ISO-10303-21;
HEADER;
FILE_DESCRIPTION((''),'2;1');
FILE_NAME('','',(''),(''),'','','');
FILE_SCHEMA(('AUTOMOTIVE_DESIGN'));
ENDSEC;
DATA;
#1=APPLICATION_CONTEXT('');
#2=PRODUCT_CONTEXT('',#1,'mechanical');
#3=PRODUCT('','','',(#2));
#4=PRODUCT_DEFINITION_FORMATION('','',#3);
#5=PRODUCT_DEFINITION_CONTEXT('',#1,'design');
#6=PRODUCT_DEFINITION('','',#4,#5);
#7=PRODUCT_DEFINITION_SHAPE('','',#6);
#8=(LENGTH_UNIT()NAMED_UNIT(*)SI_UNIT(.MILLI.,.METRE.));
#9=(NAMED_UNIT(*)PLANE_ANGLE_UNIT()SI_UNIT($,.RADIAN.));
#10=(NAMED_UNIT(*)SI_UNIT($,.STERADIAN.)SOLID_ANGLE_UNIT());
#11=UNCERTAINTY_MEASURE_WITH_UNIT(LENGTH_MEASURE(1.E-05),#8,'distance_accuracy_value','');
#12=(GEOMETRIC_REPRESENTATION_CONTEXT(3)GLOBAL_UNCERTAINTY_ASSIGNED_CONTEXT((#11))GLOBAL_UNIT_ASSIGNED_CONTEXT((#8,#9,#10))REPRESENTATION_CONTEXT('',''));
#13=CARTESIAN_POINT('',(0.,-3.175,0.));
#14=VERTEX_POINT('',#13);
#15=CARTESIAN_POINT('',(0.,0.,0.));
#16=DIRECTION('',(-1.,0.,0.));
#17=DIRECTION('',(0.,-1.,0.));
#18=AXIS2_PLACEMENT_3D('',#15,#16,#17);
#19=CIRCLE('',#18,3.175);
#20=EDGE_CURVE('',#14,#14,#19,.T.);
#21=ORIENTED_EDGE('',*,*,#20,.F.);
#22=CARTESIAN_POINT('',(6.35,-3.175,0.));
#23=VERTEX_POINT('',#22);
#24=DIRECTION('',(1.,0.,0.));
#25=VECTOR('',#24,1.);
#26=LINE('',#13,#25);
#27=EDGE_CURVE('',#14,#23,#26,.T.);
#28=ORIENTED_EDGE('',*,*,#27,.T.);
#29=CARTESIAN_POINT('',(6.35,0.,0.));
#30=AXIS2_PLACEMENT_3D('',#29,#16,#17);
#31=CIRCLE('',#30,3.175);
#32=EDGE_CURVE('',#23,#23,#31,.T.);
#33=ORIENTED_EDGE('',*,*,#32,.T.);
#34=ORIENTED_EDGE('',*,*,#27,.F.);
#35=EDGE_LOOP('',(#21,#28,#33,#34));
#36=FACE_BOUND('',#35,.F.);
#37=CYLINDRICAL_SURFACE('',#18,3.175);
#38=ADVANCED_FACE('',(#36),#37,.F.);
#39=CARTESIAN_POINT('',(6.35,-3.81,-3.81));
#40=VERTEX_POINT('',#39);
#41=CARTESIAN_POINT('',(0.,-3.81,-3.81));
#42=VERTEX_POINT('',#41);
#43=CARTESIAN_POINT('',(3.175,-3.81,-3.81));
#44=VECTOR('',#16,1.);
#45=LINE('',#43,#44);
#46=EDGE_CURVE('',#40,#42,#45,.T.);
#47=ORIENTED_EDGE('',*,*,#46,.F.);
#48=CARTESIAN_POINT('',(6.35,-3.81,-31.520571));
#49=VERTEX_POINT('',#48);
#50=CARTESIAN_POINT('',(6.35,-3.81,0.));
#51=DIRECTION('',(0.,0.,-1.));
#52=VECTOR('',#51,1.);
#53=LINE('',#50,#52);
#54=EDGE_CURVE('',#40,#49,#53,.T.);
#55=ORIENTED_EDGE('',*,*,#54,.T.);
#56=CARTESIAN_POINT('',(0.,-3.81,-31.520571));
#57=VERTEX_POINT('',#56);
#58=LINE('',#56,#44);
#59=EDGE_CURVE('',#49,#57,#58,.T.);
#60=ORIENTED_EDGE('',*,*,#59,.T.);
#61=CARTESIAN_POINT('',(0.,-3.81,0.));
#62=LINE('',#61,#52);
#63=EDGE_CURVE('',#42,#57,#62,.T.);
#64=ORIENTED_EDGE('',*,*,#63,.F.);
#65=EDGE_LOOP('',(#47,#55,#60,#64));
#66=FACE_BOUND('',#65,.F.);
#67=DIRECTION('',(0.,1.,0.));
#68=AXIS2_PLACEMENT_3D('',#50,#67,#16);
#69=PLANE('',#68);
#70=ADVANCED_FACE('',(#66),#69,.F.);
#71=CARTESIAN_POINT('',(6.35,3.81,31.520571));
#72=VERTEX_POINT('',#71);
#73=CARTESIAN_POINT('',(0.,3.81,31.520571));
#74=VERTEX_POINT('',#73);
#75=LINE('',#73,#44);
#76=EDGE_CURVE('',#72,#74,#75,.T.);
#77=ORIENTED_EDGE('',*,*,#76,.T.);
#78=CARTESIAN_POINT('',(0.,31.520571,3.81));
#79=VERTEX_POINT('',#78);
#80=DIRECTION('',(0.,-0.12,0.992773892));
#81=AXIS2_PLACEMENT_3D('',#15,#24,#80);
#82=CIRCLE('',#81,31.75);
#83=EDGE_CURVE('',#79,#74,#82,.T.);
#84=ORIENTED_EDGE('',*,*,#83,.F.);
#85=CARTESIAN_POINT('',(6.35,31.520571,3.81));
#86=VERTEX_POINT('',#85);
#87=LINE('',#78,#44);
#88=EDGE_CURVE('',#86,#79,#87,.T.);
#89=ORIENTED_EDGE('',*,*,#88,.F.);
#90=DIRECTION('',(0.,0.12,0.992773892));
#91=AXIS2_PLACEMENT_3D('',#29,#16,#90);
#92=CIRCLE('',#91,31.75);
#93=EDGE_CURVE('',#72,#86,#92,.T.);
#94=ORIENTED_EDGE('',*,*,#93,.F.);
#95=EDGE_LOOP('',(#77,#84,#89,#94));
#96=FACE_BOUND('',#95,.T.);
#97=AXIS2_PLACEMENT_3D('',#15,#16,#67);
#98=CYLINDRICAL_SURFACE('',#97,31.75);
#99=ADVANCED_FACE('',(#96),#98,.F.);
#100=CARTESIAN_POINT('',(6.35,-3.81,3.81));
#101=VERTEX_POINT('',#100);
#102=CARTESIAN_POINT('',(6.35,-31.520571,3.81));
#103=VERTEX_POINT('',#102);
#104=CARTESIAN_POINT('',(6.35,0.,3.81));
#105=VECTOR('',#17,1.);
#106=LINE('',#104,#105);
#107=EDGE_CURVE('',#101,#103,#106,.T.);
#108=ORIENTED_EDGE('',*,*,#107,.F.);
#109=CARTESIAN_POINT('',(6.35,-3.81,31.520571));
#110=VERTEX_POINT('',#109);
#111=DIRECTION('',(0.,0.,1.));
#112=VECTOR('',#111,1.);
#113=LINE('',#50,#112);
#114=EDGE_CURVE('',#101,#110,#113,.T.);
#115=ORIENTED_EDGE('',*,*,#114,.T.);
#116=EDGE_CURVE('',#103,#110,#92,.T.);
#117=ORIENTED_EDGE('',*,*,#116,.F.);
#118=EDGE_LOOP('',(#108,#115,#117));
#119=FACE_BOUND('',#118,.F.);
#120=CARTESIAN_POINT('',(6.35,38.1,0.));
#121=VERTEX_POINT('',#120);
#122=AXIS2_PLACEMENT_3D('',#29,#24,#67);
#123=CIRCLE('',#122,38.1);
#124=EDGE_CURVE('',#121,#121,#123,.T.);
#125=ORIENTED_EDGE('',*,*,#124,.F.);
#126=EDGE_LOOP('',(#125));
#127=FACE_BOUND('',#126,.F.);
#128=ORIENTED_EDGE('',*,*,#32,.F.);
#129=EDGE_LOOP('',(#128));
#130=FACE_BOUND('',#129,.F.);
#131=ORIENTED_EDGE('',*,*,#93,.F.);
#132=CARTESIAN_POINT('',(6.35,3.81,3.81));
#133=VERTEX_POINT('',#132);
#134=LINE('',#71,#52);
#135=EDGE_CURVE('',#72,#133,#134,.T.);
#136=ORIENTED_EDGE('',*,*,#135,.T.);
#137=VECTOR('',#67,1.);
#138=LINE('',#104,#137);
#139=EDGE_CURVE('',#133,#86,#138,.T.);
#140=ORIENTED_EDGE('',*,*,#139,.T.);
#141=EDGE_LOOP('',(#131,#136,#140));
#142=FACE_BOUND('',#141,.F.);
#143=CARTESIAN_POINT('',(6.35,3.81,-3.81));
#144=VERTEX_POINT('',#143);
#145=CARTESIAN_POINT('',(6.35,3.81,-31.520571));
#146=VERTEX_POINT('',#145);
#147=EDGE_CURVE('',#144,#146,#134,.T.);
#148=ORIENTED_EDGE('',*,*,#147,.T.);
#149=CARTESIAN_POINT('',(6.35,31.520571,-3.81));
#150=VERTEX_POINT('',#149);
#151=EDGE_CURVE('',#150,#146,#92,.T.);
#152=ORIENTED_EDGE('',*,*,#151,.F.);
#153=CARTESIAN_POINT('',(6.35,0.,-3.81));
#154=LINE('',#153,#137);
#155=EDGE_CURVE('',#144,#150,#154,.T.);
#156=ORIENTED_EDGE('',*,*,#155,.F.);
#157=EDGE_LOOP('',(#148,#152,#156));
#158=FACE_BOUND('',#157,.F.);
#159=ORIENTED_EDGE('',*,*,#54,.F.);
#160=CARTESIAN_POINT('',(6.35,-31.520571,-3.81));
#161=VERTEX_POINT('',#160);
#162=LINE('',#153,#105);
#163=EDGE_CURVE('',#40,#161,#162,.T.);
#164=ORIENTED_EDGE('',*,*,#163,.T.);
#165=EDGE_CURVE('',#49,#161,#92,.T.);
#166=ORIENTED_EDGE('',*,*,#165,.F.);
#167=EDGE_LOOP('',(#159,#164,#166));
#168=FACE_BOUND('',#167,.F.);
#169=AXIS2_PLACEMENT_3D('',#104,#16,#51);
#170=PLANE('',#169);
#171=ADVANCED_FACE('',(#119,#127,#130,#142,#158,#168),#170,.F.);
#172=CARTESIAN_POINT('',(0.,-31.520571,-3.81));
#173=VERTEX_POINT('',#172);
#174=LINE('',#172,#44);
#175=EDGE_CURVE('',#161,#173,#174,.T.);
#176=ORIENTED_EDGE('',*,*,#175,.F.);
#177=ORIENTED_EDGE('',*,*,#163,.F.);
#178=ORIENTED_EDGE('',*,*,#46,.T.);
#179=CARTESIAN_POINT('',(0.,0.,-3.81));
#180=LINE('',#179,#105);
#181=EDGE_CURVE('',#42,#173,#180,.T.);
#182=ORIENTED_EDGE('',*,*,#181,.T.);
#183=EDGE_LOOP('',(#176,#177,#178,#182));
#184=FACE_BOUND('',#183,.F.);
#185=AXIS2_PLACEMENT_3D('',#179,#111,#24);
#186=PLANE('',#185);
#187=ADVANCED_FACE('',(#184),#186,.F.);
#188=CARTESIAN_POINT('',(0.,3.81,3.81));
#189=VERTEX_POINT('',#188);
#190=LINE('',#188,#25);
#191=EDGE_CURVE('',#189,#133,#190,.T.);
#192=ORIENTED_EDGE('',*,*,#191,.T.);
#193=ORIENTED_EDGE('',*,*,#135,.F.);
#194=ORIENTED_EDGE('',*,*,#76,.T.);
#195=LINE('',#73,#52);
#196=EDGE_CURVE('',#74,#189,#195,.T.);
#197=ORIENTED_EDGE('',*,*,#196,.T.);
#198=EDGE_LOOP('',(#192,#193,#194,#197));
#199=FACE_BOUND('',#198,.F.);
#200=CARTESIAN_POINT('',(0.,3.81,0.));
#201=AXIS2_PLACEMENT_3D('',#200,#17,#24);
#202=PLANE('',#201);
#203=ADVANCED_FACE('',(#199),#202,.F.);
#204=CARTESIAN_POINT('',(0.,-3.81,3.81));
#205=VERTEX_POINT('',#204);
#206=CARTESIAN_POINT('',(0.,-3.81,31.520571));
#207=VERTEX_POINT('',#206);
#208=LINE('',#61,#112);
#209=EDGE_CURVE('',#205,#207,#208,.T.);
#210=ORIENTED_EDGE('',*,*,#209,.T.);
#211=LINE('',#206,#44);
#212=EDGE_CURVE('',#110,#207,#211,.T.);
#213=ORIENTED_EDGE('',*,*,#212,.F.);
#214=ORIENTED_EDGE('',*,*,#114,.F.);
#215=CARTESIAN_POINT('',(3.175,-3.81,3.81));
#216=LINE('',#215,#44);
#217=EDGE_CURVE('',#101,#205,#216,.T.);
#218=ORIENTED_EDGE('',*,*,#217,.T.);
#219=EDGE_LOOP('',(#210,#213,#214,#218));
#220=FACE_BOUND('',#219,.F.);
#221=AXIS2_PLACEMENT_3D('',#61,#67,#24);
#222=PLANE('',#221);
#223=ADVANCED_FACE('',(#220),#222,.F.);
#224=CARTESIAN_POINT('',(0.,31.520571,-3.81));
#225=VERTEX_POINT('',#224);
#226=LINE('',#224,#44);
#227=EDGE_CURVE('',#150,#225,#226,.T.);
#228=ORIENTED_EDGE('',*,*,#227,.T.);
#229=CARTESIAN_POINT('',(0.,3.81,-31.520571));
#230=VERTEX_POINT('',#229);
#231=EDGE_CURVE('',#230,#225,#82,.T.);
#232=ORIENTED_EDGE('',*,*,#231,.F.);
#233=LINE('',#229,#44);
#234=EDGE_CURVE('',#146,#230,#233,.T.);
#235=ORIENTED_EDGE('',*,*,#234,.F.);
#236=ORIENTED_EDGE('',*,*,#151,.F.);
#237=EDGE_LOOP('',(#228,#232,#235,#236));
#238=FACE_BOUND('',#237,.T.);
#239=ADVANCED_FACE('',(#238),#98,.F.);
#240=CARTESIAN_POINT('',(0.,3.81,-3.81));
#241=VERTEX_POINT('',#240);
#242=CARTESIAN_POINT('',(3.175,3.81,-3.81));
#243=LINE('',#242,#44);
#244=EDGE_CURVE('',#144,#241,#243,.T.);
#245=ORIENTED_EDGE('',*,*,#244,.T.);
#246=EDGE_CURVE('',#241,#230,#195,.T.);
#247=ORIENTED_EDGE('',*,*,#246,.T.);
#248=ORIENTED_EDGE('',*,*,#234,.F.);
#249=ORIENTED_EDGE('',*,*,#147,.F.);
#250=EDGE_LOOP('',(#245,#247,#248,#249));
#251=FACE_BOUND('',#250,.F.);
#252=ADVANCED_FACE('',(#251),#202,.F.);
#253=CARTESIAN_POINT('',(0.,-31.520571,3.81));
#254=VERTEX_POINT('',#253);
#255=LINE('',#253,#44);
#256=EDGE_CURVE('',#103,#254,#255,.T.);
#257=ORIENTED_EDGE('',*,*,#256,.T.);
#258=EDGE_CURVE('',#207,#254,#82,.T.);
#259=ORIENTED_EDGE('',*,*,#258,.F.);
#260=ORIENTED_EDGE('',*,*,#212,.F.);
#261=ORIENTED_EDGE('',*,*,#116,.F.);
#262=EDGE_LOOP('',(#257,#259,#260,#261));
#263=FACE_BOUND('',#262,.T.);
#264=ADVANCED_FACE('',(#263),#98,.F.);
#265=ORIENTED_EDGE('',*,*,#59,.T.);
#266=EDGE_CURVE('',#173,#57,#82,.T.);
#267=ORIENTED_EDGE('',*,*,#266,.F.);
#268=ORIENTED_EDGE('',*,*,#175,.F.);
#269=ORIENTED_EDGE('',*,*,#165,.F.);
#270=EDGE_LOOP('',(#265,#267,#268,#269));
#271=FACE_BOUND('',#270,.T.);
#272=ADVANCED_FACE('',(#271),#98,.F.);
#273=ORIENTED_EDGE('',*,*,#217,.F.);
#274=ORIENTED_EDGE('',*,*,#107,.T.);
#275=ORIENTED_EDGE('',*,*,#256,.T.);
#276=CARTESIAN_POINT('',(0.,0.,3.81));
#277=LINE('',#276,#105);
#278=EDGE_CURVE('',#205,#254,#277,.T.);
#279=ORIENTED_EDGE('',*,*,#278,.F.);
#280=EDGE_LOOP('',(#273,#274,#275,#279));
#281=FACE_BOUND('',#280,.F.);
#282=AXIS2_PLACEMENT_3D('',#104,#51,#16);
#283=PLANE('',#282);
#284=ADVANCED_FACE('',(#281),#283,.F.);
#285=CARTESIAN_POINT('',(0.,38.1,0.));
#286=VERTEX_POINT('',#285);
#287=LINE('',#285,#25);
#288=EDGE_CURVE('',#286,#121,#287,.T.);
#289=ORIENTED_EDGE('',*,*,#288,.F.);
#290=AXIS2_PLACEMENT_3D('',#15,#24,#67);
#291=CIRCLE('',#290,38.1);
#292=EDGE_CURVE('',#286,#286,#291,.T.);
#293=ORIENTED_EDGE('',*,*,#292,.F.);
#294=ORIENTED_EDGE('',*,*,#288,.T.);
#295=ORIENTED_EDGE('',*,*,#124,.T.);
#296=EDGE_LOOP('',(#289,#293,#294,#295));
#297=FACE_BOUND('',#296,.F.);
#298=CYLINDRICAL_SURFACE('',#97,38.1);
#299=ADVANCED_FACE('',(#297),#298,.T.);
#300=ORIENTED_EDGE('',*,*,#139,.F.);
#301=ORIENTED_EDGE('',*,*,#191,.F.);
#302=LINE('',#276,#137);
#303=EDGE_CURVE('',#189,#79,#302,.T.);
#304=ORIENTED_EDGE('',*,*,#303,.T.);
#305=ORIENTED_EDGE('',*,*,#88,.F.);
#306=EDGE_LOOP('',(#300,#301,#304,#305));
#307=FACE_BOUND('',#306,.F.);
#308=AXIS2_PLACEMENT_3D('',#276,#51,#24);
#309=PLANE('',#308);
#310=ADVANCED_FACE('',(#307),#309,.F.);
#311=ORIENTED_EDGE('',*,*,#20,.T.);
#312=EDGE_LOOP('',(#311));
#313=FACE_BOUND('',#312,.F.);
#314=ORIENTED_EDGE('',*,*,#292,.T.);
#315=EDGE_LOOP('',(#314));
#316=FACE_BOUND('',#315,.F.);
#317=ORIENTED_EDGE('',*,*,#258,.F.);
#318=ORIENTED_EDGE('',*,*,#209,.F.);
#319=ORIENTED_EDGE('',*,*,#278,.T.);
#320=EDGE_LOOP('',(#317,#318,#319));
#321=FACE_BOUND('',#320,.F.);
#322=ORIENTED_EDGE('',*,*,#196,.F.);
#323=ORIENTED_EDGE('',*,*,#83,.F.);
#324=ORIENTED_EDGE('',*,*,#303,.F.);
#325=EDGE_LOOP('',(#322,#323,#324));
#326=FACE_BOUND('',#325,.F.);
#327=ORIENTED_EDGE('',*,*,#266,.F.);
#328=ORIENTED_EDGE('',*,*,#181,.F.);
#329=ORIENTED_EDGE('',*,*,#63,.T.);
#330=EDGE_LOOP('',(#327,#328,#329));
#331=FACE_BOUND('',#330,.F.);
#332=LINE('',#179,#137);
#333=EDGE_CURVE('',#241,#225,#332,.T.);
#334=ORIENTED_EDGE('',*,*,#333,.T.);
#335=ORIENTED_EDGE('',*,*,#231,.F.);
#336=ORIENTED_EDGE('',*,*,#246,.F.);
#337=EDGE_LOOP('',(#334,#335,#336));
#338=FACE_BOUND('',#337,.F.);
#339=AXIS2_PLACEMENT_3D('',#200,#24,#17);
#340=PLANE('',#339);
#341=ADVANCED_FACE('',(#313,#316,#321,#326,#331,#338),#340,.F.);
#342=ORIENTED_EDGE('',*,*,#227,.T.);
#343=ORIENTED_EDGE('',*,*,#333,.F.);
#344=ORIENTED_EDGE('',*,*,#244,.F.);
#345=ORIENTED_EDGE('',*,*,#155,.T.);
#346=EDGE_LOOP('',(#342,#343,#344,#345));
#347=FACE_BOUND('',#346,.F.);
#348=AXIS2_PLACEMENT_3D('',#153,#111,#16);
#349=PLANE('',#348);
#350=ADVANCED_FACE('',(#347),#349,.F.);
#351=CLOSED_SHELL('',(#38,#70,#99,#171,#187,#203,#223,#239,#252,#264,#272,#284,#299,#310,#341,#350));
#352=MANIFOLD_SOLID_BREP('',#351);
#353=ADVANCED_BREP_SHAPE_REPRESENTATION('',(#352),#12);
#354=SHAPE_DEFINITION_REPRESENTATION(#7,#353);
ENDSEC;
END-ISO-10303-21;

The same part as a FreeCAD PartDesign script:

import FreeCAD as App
import Part
import Sketcher
Q = App.Units.Quantity


def add_polygon(sketch, points):
    """Adds a closed chain of lines whose ends are joined by coincident constraints."""
    first, n = sketch.GeometryCount, len(points)
    for a, b in zip(points, points[1:] + points[:1]):
        sketch.addGeometry(Part.LineSegment(App.Vector(*a, 0), App.Vector(*b, 0)), False)
    for i in range(n):
        sketch.addConstraint(Sketcher.Constraint("Coincident", first + i, 2, first + (i + 1) % n, 1))

doc = App.newDocument("Part")
params = doc.addObject("Spreadsheet::Sheet", "Params")
for row, (alias, value) in enumerate([
    ("sketch1_diameter", "3 in"),
    ("sketch1_diameter2", "2.5 in"),
    ("pad1_length", "0.25 in"),
    ("sketch2_height", "0.3 in"),
    ("sketch2_width", "0.25 in"),
    ("pad2_length", "1.3 in"),
    ("sketch3_diameter", "0.25 in"),
    ("pocket1_length", "1 in"),
], start=1):
    params.set(f"A{row}", alias)
    params.set(f"B{row}", "=" + value)
    params.setAlias(f"B{row}", alias)

body = doc.addObject("PartDesign::Body", "Body")

# Sketch on YZ plane
sketch1 = body.newObject("Sketcher::SketchObject", "Sketch")
sketch1.AttachmentSupport = (doc.getObject("YZ_Plane"), [""])
sketch1.MapMode = "FlatFace"
sketch1.addGeometry([
    Part.Circle(App.Vector(0, 0, 0), App.Vector(0, 0, 1), 38.1),
    Part.Circle(App.Vector(0, 0, 0), App.Vector(0, 0, 1), 31.75),
], False)
sketch1.addConstraint([
    Sketcher.Constraint("Coincident", 0, 3, -1, 1),
    Sketcher.Constraint("Coincident", 1, 3, -1, 1),
    Sketcher.Constraint("Diameter", 0, Q("3 in")),
    Sketcher.Constraint("Diameter", 1, Q("2.5 in")),
])
sketch1.setExpression("Constraints[2]", "Params.sketch1_diameter")
sketch1.setExpression("Constraints[3]", "Params.sketch1_diameter2")
pad1 = body.newObject("PartDesign::Pad", "Pad")
pad1.Profile = sketch1
pad1.setExpression("Length", "Params.pad1_length")
body2 = doc.addObject("PartDesign::Body", "Body001")

# Sketch on XY plane
sketch2 = body2.newObject("Sketcher::SketchObject", "Sketch001")
sketch2.AttachmentSupport = (doc.getObject("XY_Plane001"), [""])
sketch2.MapMode = "FlatFace"
add_polygon(sketch2, [(0, 3.81), (0, -3.81), (6.35, -3.81), (6.35, 3.81)])  # lines 0-3
sketch2.addConstraint([
    Sketcher.Constraint("Vertical", 0),
    Sketcher.Constraint("Horizontal", 1),
    Sketcher.Constraint("Vertical", 2),
    Sketcher.Constraint("Horizontal", 3),
    Sketcher.Constraint("Symmetric", 0, 2, 3, 2, -1, 1),
    Sketcher.Constraint("DistanceY", 0, 2, 0, 1, Q("0.3 in")),
    Sketcher.Constraint("DistanceX", 1, 1, 1, 2, Q("0.25 in")),
])
sketch2.setExpression("Constraints[9]", "Params.sketch2_height")
sketch2.setExpression("Constraints[10]", "Params.sketch2_width")
pad2 = body2.newObject("PartDesign::Pad", "Pad001")
pad2.Profile = sketch2
pad2.setExpression("Length", "Params.pad2_length")
doc.recompute()

body3 = doc.addObject("PartDesign::Body", "Body002")
body3.BaseFeature = body2
boolean = body.newObject("PartDesign::Boolean", "Boolean")
boolean.Type = "Fuse"
boolean.addObjects([body3])
doc.recompute()

body4 = doc.addObject("PartDesign::Body", "Body003")
body4.BaseFeature = body2
body4.Placement = App.Placement(App.Vector(0, 0, 0), App.Rotation(App.Vector(1, 0, 0), 90))
boolean2 = body.newObject("PartDesign::Boolean", "Boolean001")
boolean2.Type = "Fuse"
boolean2.addObjects([body4])
doc.recompute()

body5 = doc.addObject("PartDesign::Body", "Body004")
body5.BaseFeature = body2
body5.Placement = App.Placement(App.Vector(0, 0, 0), App.Rotation(App.Vector(1, 0, 0), 180))
boolean3 = body.newObject("PartDesign::Boolean", "Boolean002")
boolean3.Type = "Fuse"
boolean3.addObjects([body5])
doc.recompute()

body2.Placement = App.Placement(App.Vector(0, 0, 0), App.Rotation(App.Vector(1, 0, 0), 270))
boolean4 = body.newObject("PartDesign::Boolean", "Boolean003")
boolean4.Type = "Fuse"
boolean4.addObjects([body2])

# Sketch on YZ plane
sketch3 = body.newObject("Sketcher::SketchObject", "Sketch002")
sketch3.AttachmentSupport = (doc.getObject("YZ_Plane"), [""])
sketch3.MapMode = "FlatFace"
sketch3.addGeometry(Part.Circle(App.Vector(0, 0, 0), App.Vector(0, 0, 1), 3.175), False)
sketch3.addConstraint([
    Sketcher.Constraint("Coincident", 0, 3, -1, 1),
    Sketcher.Constraint("Diameter", 0, Q("0.25 in")),
])
sketch3.setExpression("Constraints[1]", "Params.sketch3_diameter")
pocket1 = body.newObject("PartDesign::Pocket", "Pocket")
pocket1.Profile = sketch3
pocket1.setExpression("Length", "Params.pocket1_length")
pocket1.Reversed = True

doc.recompute()
